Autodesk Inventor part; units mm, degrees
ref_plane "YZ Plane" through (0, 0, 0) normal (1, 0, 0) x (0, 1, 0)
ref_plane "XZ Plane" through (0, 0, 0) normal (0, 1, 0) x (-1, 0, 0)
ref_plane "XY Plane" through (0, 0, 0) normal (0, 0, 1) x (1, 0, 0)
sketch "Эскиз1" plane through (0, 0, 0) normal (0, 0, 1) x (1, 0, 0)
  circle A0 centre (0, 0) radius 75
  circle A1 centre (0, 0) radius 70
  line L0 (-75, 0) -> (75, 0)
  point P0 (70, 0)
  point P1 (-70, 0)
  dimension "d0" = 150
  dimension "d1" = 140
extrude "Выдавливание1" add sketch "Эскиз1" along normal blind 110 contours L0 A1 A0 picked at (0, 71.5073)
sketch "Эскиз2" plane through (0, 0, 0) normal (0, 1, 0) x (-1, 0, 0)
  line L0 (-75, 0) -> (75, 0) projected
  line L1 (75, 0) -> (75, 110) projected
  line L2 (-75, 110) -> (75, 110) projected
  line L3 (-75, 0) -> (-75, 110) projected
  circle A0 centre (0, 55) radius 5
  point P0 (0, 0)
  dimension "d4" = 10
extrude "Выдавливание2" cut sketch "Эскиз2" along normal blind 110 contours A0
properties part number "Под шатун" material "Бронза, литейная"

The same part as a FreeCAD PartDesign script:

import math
import FreeCAD as App
import Part
import Sketcher

doc = App.newDocument("Part")
body = doc.addObject("PartDesign::Body", "Body")

# Sketch on XY plane
sketch1 = body.newObject("Sketcher::SketchObject", "Sketch")
sketch1.AttachmentSupport = (doc.getObject("XY_Plane"), [""])
sketch1.MapMode = "FlatFace"
sketch1.addGeometry(Part.LineSegment(App.Vector(70, 0, 0), App.Vector(75, 0, 0)), False)
sketch1.addGeometry(Part.ArcOfCircle(Part.Circle(App.Vector(0, 0, 0), App.Vector(0, 0, 1), 75), math.radians(0), math.radians(180)), False)
sketch1.addGeometry(Part.LineSegment(App.Vector(-75, 0, 0), App.Vector(-70, 0, 0)), False)
sketch1.addGeometry(Part.ArcOfCircle(Part.Circle(App.Vector(0, 0, 0), App.Vector(0, 0, 1), 70), math.radians(0), math.radians(180)), False)
sketch1.addConstraint(Sketcher.Constraint("Coincident", 0, 2, 1, 1))
sketch1.addConstraint(Sketcher.Constraint("Coincident", 1, 2, 2, 1))
sketch1.addConstraint(Sketcher.Constraint("Coincident", 2, 2, 3, 2))
sketch1.addConstraint(Sketcher.Constraint("Coincident", 3, 1, 0, 1))
sketch1.addConstraint(Sketcher.Constraint("Horizontal", 0))
sketch1.addConstraint(Sketcher.Constraint("Horizontal", 2))
sketch1.addConstraint(Sketcher.Constraint("Coincident", 1, 3, -1, 1))
sketch1.addConstraint(Sketcher.Constraint("Coincident", 3, 3, -1, 1))
sketch1.addConstraint(Sketcher.Constraint("PointOnObject", 0, 2, -1))
sketch1.addConstraint(Sketcher.Constraint("PointOnObject", 1, 2, -1))
sketch1.addConstraint(Sketcher.Constraint("Radius", 1, 75.0))
sketch1.addConstraint(Sketcher.Constraint("Radius", 3, 70.0))
pad1 = body.newObject("PartDesign::Pad", "Pad")
pad1.Profile = sketch1
pad1.Length = 110

# Sketch on XZ plane
sketch2 = body.newObject("Sketcher::SketchObject", "Sketch001")
sketch2.AttachmentSupport = (doc.getObject("XZ_Plane"), [""])
sketch2.MapMode = "FlatFace"
sketch2.addGeometry(Part.Circle(App.Vector(0, 55, 0), App.Vector(0, 0, 1), 5), False)
sketch2.addConstraint(Sketcher.Constraint("PointOnObject", 0, 3, -2))
sketch2.addConstraint(Sketcher.Constraint("Diameter", 0, 10.0))
sketch2.addConstraint(Sketcher.Constraint("DistanceY", -1, 1, 0, 3, 55.0))
pocket1 = body.newObject("PartDesign::Pocket", "Pocket")
pocket1.Profile = sketch2
pocket1.Length = 110

doc.recompute()
